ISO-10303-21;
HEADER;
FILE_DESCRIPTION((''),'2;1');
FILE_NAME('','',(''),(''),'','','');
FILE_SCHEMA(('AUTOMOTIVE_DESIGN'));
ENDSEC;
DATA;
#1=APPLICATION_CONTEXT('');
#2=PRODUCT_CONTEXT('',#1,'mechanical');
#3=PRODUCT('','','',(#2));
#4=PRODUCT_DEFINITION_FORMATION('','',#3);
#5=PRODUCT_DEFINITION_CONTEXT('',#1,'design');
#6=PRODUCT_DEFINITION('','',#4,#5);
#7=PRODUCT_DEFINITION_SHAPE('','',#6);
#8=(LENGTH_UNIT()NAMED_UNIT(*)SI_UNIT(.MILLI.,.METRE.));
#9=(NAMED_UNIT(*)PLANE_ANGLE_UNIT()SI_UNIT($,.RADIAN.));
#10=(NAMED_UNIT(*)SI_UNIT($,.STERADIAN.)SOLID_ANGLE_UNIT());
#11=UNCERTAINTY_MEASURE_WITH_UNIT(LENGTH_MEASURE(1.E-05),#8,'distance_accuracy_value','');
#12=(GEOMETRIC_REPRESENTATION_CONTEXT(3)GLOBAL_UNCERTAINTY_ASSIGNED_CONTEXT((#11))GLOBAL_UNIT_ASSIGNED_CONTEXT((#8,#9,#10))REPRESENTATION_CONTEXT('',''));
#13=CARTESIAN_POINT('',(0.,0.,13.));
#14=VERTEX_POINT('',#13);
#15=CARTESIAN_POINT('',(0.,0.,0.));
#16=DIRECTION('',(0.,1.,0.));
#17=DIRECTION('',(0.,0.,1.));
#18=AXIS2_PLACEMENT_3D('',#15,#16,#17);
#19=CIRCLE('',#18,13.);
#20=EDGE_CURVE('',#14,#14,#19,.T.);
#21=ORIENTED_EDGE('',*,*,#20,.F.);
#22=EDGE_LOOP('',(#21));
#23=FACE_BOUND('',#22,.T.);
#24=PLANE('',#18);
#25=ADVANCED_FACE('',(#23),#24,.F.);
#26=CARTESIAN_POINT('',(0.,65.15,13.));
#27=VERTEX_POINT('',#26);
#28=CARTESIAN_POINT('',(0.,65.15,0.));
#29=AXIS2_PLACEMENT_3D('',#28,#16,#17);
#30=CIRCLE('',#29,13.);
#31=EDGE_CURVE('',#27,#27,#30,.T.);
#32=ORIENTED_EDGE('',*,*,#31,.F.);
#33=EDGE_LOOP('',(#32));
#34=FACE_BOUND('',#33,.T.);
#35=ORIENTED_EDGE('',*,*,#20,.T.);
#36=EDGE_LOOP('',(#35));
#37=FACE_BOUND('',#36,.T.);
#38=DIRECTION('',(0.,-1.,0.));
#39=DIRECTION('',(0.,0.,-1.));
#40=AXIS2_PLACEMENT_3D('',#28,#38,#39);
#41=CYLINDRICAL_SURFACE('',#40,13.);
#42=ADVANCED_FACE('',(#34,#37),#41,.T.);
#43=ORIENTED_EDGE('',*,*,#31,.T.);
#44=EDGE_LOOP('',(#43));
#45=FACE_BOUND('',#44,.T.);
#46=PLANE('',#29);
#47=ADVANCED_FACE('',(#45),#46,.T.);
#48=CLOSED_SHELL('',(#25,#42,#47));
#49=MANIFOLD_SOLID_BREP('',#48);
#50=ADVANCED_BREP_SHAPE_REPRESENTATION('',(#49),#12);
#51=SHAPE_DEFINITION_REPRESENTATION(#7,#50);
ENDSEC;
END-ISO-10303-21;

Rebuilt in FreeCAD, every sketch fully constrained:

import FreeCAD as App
import Part
import Sketcher
from FreeCAD import Vector

doc = App.newDocument("Part")
body = doc.addObject("PartDesign::Body", "Body")

# Sketch on XZ plane
sketch1 = doc.addObject("Sketcher::SketchObject", "Sketch")
body.addObject(sketch1)
sketch1.AttachmentSupport = (doc.XZ_Plane, [""])
sketch1.MapMode = "FlatFace"
sketch1.addGeometry(Part.Circle(Vector(0, 0, 0), Vector(0, 0, 1), 13), False)
sketch1.addConstraint(Sketcher.Constraint("Coincident", 0, 3, -1, 1))
sketch1.addConstraint(Sketcher.Constraint("Diameter", 0, 26.0))
pad1 = doc.addObject("PartDesign::Pad", "Pad")
body.addObject(pad1)
pad1.Profile = sketch1
pad1.Length = 65.15
pad1.Reversed = True

doc.recompute()
